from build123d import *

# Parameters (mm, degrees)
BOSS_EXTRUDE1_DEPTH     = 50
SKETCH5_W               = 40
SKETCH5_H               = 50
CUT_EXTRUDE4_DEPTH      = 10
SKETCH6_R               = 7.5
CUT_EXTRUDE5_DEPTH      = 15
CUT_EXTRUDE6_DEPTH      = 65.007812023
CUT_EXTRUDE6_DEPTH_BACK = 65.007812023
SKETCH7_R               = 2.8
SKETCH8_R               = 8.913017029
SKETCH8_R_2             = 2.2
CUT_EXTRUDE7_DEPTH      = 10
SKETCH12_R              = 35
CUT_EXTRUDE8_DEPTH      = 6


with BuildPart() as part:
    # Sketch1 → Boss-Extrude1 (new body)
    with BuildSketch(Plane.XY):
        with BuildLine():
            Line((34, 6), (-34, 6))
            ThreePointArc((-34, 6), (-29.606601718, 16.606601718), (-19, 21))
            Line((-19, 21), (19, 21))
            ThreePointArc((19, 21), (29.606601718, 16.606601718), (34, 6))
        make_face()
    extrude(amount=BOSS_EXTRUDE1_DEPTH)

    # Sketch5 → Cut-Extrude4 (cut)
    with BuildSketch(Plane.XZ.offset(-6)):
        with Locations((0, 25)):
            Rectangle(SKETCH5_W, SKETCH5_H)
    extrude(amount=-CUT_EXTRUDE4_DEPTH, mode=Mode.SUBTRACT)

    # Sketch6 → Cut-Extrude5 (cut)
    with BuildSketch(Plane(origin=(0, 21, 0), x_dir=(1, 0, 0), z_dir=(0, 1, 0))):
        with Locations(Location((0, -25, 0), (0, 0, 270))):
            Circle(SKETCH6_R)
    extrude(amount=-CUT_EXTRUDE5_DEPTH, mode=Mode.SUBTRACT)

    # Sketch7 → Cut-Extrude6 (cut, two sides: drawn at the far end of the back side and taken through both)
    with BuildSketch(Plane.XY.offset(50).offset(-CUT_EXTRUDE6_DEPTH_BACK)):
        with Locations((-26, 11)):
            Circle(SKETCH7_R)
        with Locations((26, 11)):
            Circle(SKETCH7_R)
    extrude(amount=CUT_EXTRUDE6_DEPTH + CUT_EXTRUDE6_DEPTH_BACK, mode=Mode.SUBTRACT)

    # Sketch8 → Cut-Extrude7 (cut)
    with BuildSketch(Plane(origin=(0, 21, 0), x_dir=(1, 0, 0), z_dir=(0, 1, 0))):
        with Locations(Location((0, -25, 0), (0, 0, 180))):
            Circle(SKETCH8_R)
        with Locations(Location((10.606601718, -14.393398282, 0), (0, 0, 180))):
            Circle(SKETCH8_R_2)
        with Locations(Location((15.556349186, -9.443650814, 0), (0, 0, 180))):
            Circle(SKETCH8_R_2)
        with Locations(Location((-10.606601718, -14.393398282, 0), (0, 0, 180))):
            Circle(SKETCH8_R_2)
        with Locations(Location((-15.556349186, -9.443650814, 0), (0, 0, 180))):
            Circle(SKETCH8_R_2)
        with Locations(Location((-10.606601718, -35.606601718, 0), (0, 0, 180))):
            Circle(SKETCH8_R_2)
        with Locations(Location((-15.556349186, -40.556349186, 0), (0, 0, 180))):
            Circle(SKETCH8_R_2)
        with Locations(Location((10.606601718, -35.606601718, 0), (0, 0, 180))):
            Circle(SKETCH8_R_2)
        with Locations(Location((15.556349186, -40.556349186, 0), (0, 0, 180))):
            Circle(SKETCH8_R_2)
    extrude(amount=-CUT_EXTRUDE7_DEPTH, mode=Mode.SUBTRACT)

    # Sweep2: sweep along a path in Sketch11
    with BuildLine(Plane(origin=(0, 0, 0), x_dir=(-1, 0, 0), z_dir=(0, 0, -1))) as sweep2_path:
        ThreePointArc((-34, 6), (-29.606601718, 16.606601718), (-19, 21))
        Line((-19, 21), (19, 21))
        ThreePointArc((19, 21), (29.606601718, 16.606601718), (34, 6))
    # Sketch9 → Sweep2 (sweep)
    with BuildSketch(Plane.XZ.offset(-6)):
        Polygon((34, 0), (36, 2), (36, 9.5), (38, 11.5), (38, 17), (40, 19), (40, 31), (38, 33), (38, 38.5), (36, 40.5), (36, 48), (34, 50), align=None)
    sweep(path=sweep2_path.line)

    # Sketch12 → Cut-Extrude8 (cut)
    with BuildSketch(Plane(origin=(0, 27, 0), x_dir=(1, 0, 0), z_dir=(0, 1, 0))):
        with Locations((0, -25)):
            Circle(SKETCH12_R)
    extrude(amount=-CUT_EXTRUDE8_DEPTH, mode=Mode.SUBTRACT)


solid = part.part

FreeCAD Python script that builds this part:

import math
import FreeCAD as App
import Part
import Sketcher
from FreeCAD import Vector

doc = App.newDocument("Part")
body = doc.addObject("PartDesign::Body", "Body")

# Sketch on XY plane
sketch1 = body.newObject("Sketcher::SketchObject", "Sketch")
sketch1.AttachmentSupport = (doc.getObject("XY_Plane"), [""])
sketch1.MapMode = "FlatFace"
sketch1.addGeometry(Part.LineSegment(Vector(-34, 6, 0), Vector(34, 6, 0)), False)
sketch1.addGeometry(Part.ArcOfCircle(Part.Circle(Vector(19, 6, 0), Vector(0, 0, 1), 15), math.radians(0), math.radians(90)), False)
sketch1.addGeometry(Part.LineSegment(Vector(19, 21, 0), Vector(-19, 21, 0)), False)
sketch1.addGeometry(Part.ArcOfCircle(Part.Circle(Vector(-19, 6, 0), Vector(0, 0, 1), 15), math.radians(90), math.radians(180)), False)
sketch1.addConstraint(Sketcher.Constraint("Coincident", 0, 2, 1, 1))
sketch1.addConstraint(Sketcher.Constraint("Tangent", 1, 2, 2, 1))
sketch1.addConstraint(Sketcher.Constraint("Tangent", 2, 2, 3, 1))
sketch1.addConstraint(Sketcher.Constraint("Coincident", 3, 2, 0, 1))
sketch1.addConstraint(Sketcher.Constraint("Horizontal", 0))
sketch1.addConstraint(Sketcher.Constraint("Horizontal", 2))
sketch1.addConstraint(Sketcher.Constraint("Equal", 1, 3))
sketch1.addConstraint(Sketcher.Constraint("Horizontal", 3, 3, 0, 2))
sketch1.addConstraint(Sketcher.Constraint("Radius", 1, 15.0))
sketch1.addConstraint(Sketcher.Constraint("DistanceX", 0, 1, 0, 2, 68.0))
sketch1.addConstraint(Sketcher.Constraint("DistanceX", -1, 1, 1, 3, 19.0))
sketch1.addConstraint(Sketcher.Constraint("DistanceY", -1, 1, 1, 3, 6.0))
pad1 = body.newObject("PartDesign::Pad", "Pad")
pad1.Profile = sketch1
pad1.Length = 50

# Sketch on XZ plane
sketch2 = body.newObject("Sketcher::SketchObject", "Sketch001")
sketch2.AttachmentSupport = (doc.getObject("XZ_Plane"), [""])
sketch2.MapMode = "FlatFace"
sketch2.AttachmentOffset = App.Placement(Vector(0, 0, -6), App.Rotation())
sketch2.addGeometry(Part.LineSegment(Vector(-20, 50, 0), Vector(-20, 0, 0)), False)
sketch2.addGeometry(Part.LineSegment(Vector(-20, 0, 0), Vector(20, 0, 0)), False)
sketch2.addGeometry(Part.LineSegment(Vector(20, 0, 0), Vector(20, 50, 0)), False)
sketch2.addGeometry(Part.LineSegment(Vector(20, 50, 0), Vector(-20, 50, 0)), False)
sketch2.addConstraint(Sketcher.Constraint("Coincident", 0, 2, 1, 1))
sketch2.addConstraint(Sketcher.Constraint("Coincident", 1, 2, 2, 1))
sketch2.addConstraint(Sketcher.Constraint("Coincident", 2, 2, 3, 1))
sketch2.addConstraint(Sketcher.Constraint("Coincident", 3, 2, 0, 1))
sketch2.addConstraint(Sketcher.Constraint("Vertical", 0))
sketch2.addConstraint(Sketcher.Constraint("Horizontal", 1))
sketch2.addConstraint(Sketcher.Constraint("Vertical", 2))
sketch2.addConstraint(Sketcher.Constraint("Horizontal", 3))
sketch2.addConstraint(Sketcher.Constraint("Symmetric", 0, 2, 1, 2, -1, 1))
sketch2.addConstraint(Sketcher.Constraint("DistanceX", 1, 1, 1, 2, 40.0))
sketch2.addConstraint(Sketcher.Constraint("DistanceY", 0, 2, 0, 1, 50.0))
pocket1 = body.newObject("PartDesign::Pocket", "Pocket")
pocket1.Profile = sketch2
pocket1.Length = 10

# Sketch on XZ plane
sketch3 = body.newObject("Sketcher::SketchObject", "Sketch002")
sketch3.AttachmentSupport = (doc.getObject("XZ_Plane"), [""])
sketch3.MapMode = "FlatFace"
sketch3.AttachmentOffset = App.Placement(Vector(0, 0, -21), App.Rotation())
sketch3.addGeometry(Part.Circle(Vector(0, 25, 0), Vector(0, 0, 1), 8), False)
sketch3.addConstraint(Sketcher.Constraint("PointOnObject", 0, 3, -2))
sketch3.addConstraint(Sketcher.Constraint("Diameter", 0, 15.0))
sketch3.addConstraint(Sketcher.Constraint("DistanceY", -1, 1, 0, 3, 25.0))
pocket2 = body.newObject("PartDesign::Pocket", "Pocket001")
pocket2.Profile = sketch3
pocket2.Length = 15
pocket2.Reversed = True

# Sketch on XY plane
sketch4 = body.newObject("Sketcher::SketchObject", "Sketch003")
sketch4.AttachmentSupport = (doc.getObject("XY_Plane"), [""])
sketch4.MapMode = "FlatFace"
sketch4.AttachmentOffset = App.Placement(Vector(0, 0, 50), App.Rotation())
sketch4.addGeometry(Part.Circle(Vector(-26, 11, 0), Vector(0, 0, 1), 2.8), False)
sketch4.addGeometry(Part.Circle(Vector(26, 11, 0), Vector(0, 0, 1), 2.8), False)
sketch4.addConstraint(Sketcher.Constraint("Equal", 0, 1))
sketch4.addConstraint(Sketcher.Constraint("Symmetric", 0, 3, 1, 3, -2))
sketch4.addConstraint(Sketcher.Constraint("Diameter", 0, 5.6))
sketch4.addConstraint(Sketcher.Constraint("DistanceX", 0, 3, -1, 1, 26.0))
sketch4.addConstraint(Sketcher.Constraint("DistanceY", -1, 1, 0, 3, 11.0))
pocket3 = body.newObject("PartDesign::Pocket", "Pocket002")
pocket3.Profile = sketch4
pocket3.Type = "ThroughAll"
pocket3.Midplane = True

# Sketch on XZ plane
sketch5 = body.newObject("Sketcher::SketchObject", "Sketch004")
sketch5.AttachmentSupport = (doc.getObject("XZ_Plane"), [""])
sketch5.MapMode = "FlatFace"
sketch5.AttachmentOffset = App.Placement(Vector(0, 0, -21), App.Rotation())
sketch5.addGeometry(Part.Circle(Vector(0, 25, 0), Vector(0, 0, 1), 8.9), False)
sketch5.addGeometry(Part.Circle(Vector(10.6, 14.4, 0), Vector(0, 0, 1), 2.2), False)
sketch5.addGeometry(Part.Circle(Vector(15.6, 9.4, 0), Vector(0, 0, 1), 2.2), False)
sketch5.addGeometry(Part.Circle(Vector(-10.6, 14.4, 0), Vector(0, 0, 1), 2.2), False)
sketch5.addGeometry(Part.Circle(Vector(-15.6, 9.4, 0), Vector(0, 0, 1), 2.2), False)
sketch5.addGeometry(Part.Circle(Vector(-10.6, 35.6, 0), Vector(0, 0, 1), 2.2), False)
sketch5.addGeometry(Part.Circle(Vector(-15.6, 40.6, 0), Vector(0, 0, 1), 2.2), False)
sketch5.addGeometry(Part.Circle(Vector(10.6, 35.6, 0), Vector(0, 0, 1), 2.2), False)
sketch5.addGeometry(Part.Circle(Vector(15.6, 40.6, 0), Vector(0, 0, 1), 2.2), False)
sketch5.addConstraint(Sketcher.Constraint("Equal", 1, 2))
sketch5.addConstraint(Sketcher.Constraint("Equal", 2, 3))
sketch5.addConstraint(Sketcher.Constraint("Equal", 3, 4))
sketch5.addConstraint(Sketcher.Constraint("Equal", 4, 5))
sketch5.addConstraint(Sketcher.Constraint("Equal", 5, 6))
sketch5.addConstraint(Sketcher.Constraint("Equal", 6, 7))
sketch5.addConstraint(Sketcher.Constraint("Equal", 7, 8))
sketch5.addConstraint(Sketcher.Constraint("Symmetric", 1, 3, 3, 3, -2))
sketch5.addConstraint(Sketcher.Constraint("Symmetric", 2, 3, 4, 3, -2))
sketch5.addConstraint(Sketcher.Constraint("Symmetric", 5, 3, 7, 3, -2))
sketch5.addConstraint(Sketcher.Constraint("Symmetric", 6, 3, 8, 3, -2))
sketch5.addConstraint(Sketcher.Constraint("PointOnObject", 0, 3, -2))
sketch5.addConstraint(Sketcher.Constraint("Vertical", 3, 3, 5, 3))
sketch5.addConstraint(Sketcher.Constraint("Vertical", 4, 3, 6, 3))
sketch5.addConstraint(Sketcher.Constraint("Diameter", 1, 4.4))
sketch5.addConstraint(Sketcher.Constraint("DistanceY", -1, 1, 0, 3, 25.0))
sketch5.addConstraint(Sketcher.Constraint("Diameter", 0, 17.826034))
sketch5.addConstraint(Sketcher.Constraint("DistanceX", -1, 1, 1, 3, 10.606602))
sketch5.addConstraint(Sketcher.Constraint("DistanceY", -1, 1, 1, 3, 14.393398))
sketch5.addConstraint(Sketcher.Constraint("DistanceY", -1, 1, 5, 3, 35.606602))
sketch5.addConstraint(Sketcher.Constraint("DistanceX", 4, 3, 2, 3, 31.112698))
sketch5.addConstraint(Sketcher.Constraint("DistanceY", 4, 3, 6, 3, 31.112698))
sketch5.addConstraint(Sketcher.Constraint("DistanceY", -1, 1, 2, 3, 9.443651))
pocket4 = body.newObject("PartDesign::Pocket", "Pocket003")
pocket4.Profile = sketch5
pocket4.Length = 10
pocket4.Reversed = True

# Sketch on XZ plane
sketch6 = body.newObject("Sketcher::SketchObject", "Sketch005")
sketch6.AttachmentSupport = (doc.getObject("XZ_Plane"), [""])
sketch6.MapMode = "FlatFace"
sketch6.AttachmentOffset = App.Placement(Vector(0, 0, -6), App.Rotation())
sketch6.addGeometry(Part.LineSegment(Vector(34, 0, 0), Vector(36, 2, 0)), False)
sketch6.addGeometry(Part.LineSegment(Vector(36, 2, 0), Vector(36, 9.5, 0)), False)
sketch6.addGeometry(Part.LineSegment(Vector(36, 9.5, 0), Vector(38, 11.5, 0)), False)
sketch6.addGeometry(Part.LineSegment(Vector(38, 11.5, 0), Vector(38, 17, 0)), False)
sketch6.addGeometry(Part.LineSegment(Vector(38, 17, 0), Vector(40, 19, 0)), False)
sketch6.addGeometry(Part.LineSegment(Vector(40, 19, 0), Vector(40, 31, 0)), False)
sketch6.addGeometry(Part.LineSegment(Vector(40, 31, 0), Vector(38, 33, 0)), False)
sketch6.addGeometry(Part.LineSegment(Vector(38, 33, 0), Vector(38, 38.5, 0)), False)
sketch6.addGeometry(Part.LineSegment(Vector(38, 38.5, 0), Vector(36, 40.5, 0)), False)
sketch6.addGeometry(Part.LineSegment(Vector(36, 40.5, 0), Vector(36, 48, 0)), False)
sketch6.addGeometry(Part.LineSegment(Vector(36, 48, 0), Vector(34, 50, 0)), False)
sketch6.addGeometry(Part.LineSegment(Vector(34, 50, 0), Vector(34, 0, 0)), False)
sketch6.addConstraint(Sketcher.Constraint("Coincident", 0, 2, 1, 1))
sketch6.addConstraint(Sketcher.Constraint("Coincident", 1, 2, 2, 1))
sketch6.addConstraint(Sketcher.Constraint("Coincident", 2, 2, 3, 1))
sketch6.addConstraint(Sketcher.Constraint("Coincident", 3, 2, 4, 1))
sketch6.addConstraint(Sketcher.Constraint("Coincident", 4, 2, 5, 1))
sketch6.addConstraint(Sketcher.Constraint("Coincident", 5, 2, 6, 1))
sketch6.addConstraint(Sketcher.Constraint("Coincident", 6, 2, 7, 1))
sketch6.addConstraint(Sketcher.Constraint("Coincident", 7, 2, 8, 1))
sketch6.addConstraint(Sketcher.Constraint("Coincident", 8, 2, 9, 1))
sketch6.addConstraint(Sketcher.Constraint("Coincident", 9, 2, 10, 1))
sketch6.addConstraint(Sketcher.Constraint("Coincident", 10, 2, 11, 1))
sketch6.addConstraint(Sketcher.Constraint("Coincident", 11, 2, 0, 1))
sketch6.addConstraint(Sketcher.Constraint("Vertical", 1))
sketch6.addConstraint(Sketcher.Constraint("Vertical", 3))
sketch6.addConstraint(Sketcher.Constraint("Vertical", 5))
sketch6.addConstraint(Sketcher.Constraint("Vertical", 7))
sketch6.addConstraint(Sketcher.Constraint("Vertical", 9))
sketch6.addConstraint(Sketcher.Constraint("Vertical", 11))
sketch6.addConstraint(Sketcher.Constraint("PointOnObject", 11, 2, -1))
sketch6.addConstraint(Sketcher.Constraint("Parallel", 0, 2))
sketch6.addConstraint(Sketcher.Constraint("Parallel", 2, 4))
sketch6.addConstraint(Sketcher.Constraint("Perpendicular", 4, 6))
sketch6.addConstraint(Sketcher.Constraint("Parallel", 6, 8))
sketch6.addConstraint(Sketcher.Constraint("Parallel", 8, 10))
sketch6.addConstraint(Sketcher.Constraint("Vertical", 3, 2, 6, 2))
sketch6.addConstraint(Sketcher.Constraint("Vertical", 1, 2, 8, 2))
sketch6.addConstraint(Sketcher.Constraint("Equal", 3, 7))
sketch6.addConstraint(Sketcher.Constraint("Equal", 1, 9))
sketch6.addConstraint(Sketcher.Constraint("Equal", 0, 2))
sketch6.addConstraint(Sketcher.Constraint("Equal", 2, 4))
sketch6.addConstraint(Sketcher.Constraint("Equal", 4, 6))
sketch6.addConstraint(Sketcher.Constraint("DistanceY", 5, 1, 5, 2, 12.0))
sketch6.addConstraint(Sketcher.Constraint("DistanceY", 11, 2, 11, 1, 50.0))
sketch6.addConstraint(Sketcher.Constraint("DistanceY", 1, 1, 1, 2, 7.5))
sketch6.addConstraint(Sketcher.Constraint("DistanceY", 3, 1, 3, 2, 5.5))
sketch6.addConstraint(Sketcher.Constraint("DistanceX", -1, 1, 0, 2, 36.0))

# Sketch on XY plane
sketch7 = body.newObject("Sketcher::SketchObject", "Sketch006")
sketch7.AttachmentSupport = (doc.getObject("XY_Plane"), [""])
sketch7.MapMode = "FlatFace"
sketch7.addGeometry(Part.ArcOfCircle(Part.Circle(Vector(19, 6, 0), Vector(0, 0, 1), 15), math.radians(0), math.radians(90)), False)
sketch7.addGeometry(Part.LineSegment(Vector(19, 21, 0), Vector(-19, 21, 0)), False)
sketch7.addGeometry(Part.ArcOfCircle(Part.Circle(Vector(-19, 6, 0), Vector(0, 0, 1), 15), math.radians(90), math.radians(180)), False)
sketch7.addConstraint(Sketcher.Constraint("Tangent", 0, 2, 1, 1))
sketch7.addConstraint(Sketcher.Constraint("Tangent", 1, 2, 2, 1))
sketch7.addConstraint(Sketcher.Constraint("Horizontal", 1))
sketch7.addConstraint(Sketcher.Constraint("Equal", 0, 2))
sketch7.addConstraint(Sketcher.Constraint("Symmetric", 0, 1, 2, 2, -2))
sketch7.addConstraint(Sketcher.Constraint("Horizontal", 2, 3, 0, 1))
sketch7.addConstraint(Sketcher.Constraint("Radius", 0, 15.0))
sketch7.addConstraint(Sketcher.Constraint("DistanceX", 1, 2, 1, 1, 38.0))
sketch7.addConstraint(Sketcher.Constraint("DistanceY", -1, 1, 0, 3, 6.0))
doc.recompute()

additivepipe = body.newObject("PartDesign::AdditivePipe", "AdditivePipe")
additivepipe.Profile = sketch6
additivepipe.Spine = (sketch7, ["Edge1", "Edge2", "Edge3"])

# Sketch on XZ plane
sketch8 = body.newObject("Sketcher::SketchObject", "Sketch007")
sketch8.AttachmentSupport = (doc.getObject("XZ_Plane"), [""])
sketch8.MapMode = "FlatFace"
sketch8.AttachmentOffset = App.Placement(Vector(0, 0, -27), App.Rotation())
sketch8.addGeometry(Part.Circle(Vector(0, 25, 0), Vector(0, 0, 1), 35), False)
sketch8.addConstraint(Sketcher.Constraint("PointOnObject", 0, 3, -2))
sketch8.addConstraint(Sketcher.Constraint("Diameter", 0, 70.0))
sketch8.addConstraint(Sketcher.Constraint("DistanceY", -1, 1, 0, 3, 25.0))
pocket5 = body.newObject("PartDesign::Pocket", "Pocket004")
pocket5.Profile = sketch8
pocket5.Length = 6
pocket5.Reversed = True

doc.recompute()
